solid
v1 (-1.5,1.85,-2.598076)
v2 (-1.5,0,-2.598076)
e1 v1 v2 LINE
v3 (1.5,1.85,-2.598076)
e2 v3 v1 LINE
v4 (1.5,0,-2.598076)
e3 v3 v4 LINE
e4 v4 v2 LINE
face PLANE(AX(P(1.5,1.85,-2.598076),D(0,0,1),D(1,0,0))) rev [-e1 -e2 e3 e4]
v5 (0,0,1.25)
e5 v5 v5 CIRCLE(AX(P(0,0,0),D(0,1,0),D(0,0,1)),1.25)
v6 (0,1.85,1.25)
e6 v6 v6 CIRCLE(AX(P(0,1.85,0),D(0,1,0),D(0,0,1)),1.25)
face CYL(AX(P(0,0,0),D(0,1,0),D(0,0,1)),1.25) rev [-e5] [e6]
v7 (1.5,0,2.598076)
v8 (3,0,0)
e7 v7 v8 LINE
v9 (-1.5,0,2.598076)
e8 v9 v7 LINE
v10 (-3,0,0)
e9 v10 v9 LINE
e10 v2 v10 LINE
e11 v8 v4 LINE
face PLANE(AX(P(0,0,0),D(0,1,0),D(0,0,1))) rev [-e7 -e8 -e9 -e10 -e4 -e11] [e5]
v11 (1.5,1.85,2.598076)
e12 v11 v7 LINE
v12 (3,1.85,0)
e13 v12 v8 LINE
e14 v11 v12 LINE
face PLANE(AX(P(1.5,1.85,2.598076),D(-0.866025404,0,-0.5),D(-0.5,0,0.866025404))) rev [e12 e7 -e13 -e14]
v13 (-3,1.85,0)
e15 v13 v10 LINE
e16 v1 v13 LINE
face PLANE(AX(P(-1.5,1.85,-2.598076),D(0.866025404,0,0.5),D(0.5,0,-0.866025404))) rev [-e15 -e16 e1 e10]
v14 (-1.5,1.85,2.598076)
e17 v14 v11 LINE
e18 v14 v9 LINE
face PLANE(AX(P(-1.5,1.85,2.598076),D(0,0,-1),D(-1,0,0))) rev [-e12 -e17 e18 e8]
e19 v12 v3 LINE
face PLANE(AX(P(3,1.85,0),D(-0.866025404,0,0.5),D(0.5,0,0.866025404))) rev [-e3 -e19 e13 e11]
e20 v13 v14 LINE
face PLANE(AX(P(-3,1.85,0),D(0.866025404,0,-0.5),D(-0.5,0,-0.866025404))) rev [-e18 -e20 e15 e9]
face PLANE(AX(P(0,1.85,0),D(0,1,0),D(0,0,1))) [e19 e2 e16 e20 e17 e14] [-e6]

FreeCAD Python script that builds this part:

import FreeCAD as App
import Part
import Sketcher
Q = App.Units.Quantity

doc = App.newDocument("Part")
params = doc.addObject("Spreadsheet::Sheet", "Params")
for row, (alias, value) in enumerate([
    ("sketch1_width", "3 mm"),
    ("sketch1_length", "3 mm"),
    ("pad1_length", "1.85 mm"),
    ("sketch2_diameter", "2.5 mm"),
    ("pocket1_length", "1.85 mm"),
], start=1):
    params.set(f"A{row}", alias)
    params.set(f"B{row}", "=" + value)
    params.setAlias(f"B{row}", alias)

body = doc.addObject("PartDesign::Body", "Body")

# Sketch on XZ plane
sketch1 = body.newObject("Sketcher::SketchObject", "Sketch")
sketch1.AttachmentSupport = (doc.getObject("XZ_Plane"), [""])
sketch1.MapMode = "FlatFace"
sketch1.addGeometry(Part.LineSegment(App.Vector(3, 0, 0), App.Vector(1.5, -2.598076, 0)), False)
sketch1.addGeometry(Part.LineSegment(App.Vector(1.5, -2.598076, 0), App.Vector(-1.5, -2.598076, 0)), False)
sketch1.addGeometry(Part.LineSegment(App.Vector(-1.5, -2.598076, 0), App.Vector(-3, 0, 0)), False)
sketch1.addGeometry(Part.LineSegment(App.Vector(-3, 0, 0), App.Vector(-1.5, 2.598076, 0)), False)
sketch1.addGeometry(Part.LineSegment(App.Vector(-1.5, 2.598076, 0), App.Vector(1.5, 2.598076, 0)), False)
sketch1.addGeometry(Part.LineSegment(App.Vector(1.5, 2.598076, 0), App.Vector(3, 0, 0)), False)
sketch1.addConstraint(Sketcher.Constraint("Coincident", 0, 2, 1, 1))
sketch1.addConstraint(Sketcher.Constraint("Coincident", 1, 2, 2, 1))
sketch1.addConstraint(Sketcher.Constraint("Coincident", 2, 2, 3, 1))
sketch1.addConstraint(Sketcher.Constraint("Coincident", 3, 2, 4, 1))
sketch1.addConstraint(Sketcher.Constraint("Coincident", 4, 2, 5, 1))
sketch1.addConstraint(Sketcher.Constraint("Coincident", 5, 2, 0, 1))
sketch1.addConstraint(Sketcher.Constraint("Horizontal", 1))
sketch1.addConstraint(Sketcher.Constraint("Horizontal", 4))
sketch1.addConstraint(Sketcher.Constraint("Symmetric", 0, 2, 3, 2, -1, 1))
sketch1.addConstraint(Sketcher.Constraint("Symmetric", 2, 2, 5, 2, -1, 1))
sketch1.addConstraint(Sketcher.Constraint("PointOnObject", 2, 2, -1))
sketch1.addConstraint(Sketcher.Constraint("Parallel", 2, 5))
sketch1.addConstraint(Sketcher.Constraint("Vertical", 1, 2, 3, 2))
sketch1.addConstraint(Sketcher.Constraint("DistanceX", 1, 2, 1, 1, 3.0))
sketch1.addConstraint(Sketcher.Constraint("Angle", 0, Q("-120 deg")))
sketch1.addConstraint(Sketcher.Constraint("Distance", 0, 3.0))
sketch1.setExpression("Constraints[13]", "Params.sketch1_width")
sketch1.setExpression("Constraints[15]", "Params.sketch1_length")
pad1 = body.newObject("PartDesign::Pad", "Pad")
pad1.Profile = sketch1
pad1.setExpression("Length", "Params.pad1_length")
pad1.Reversed = True

# Sketch on XZ plane
sketch2 = body.newObject("Sketcher::SketchObject", "Sketch001")
sketch2.AttachmentSupport = (doc.getObject("XZ_Plane"), [""])
sketch2.MapMode = "FlatFace"
sketch2.AttachmentOffset = App.Placement(App.Vector(0, 0, -1.85), App.Rotation())
sketch2.addGeometry(Part.Circle(App.Vector(0, 0, 0), App.Vector(0, 0, 1), 1.25), False)
sketch2.addConstraint(Sketcher.Constraint("Coincident", 0, 3, -1, 1))
sketch2.addConstraint(Sketcher.Constraint("Diameter", 0, 2.5))
sketch2.setExpression("Constraints[1]", "Params.sketch2_diameter")
pocket1 = body.newObject("PartDesign::Pocket", "Pocket")
pocket1.Profile = sketch2
pocket1.setExpression("Length", "Params.pocket1_length")
pocket1.Reversed = True

doc.recompute()
